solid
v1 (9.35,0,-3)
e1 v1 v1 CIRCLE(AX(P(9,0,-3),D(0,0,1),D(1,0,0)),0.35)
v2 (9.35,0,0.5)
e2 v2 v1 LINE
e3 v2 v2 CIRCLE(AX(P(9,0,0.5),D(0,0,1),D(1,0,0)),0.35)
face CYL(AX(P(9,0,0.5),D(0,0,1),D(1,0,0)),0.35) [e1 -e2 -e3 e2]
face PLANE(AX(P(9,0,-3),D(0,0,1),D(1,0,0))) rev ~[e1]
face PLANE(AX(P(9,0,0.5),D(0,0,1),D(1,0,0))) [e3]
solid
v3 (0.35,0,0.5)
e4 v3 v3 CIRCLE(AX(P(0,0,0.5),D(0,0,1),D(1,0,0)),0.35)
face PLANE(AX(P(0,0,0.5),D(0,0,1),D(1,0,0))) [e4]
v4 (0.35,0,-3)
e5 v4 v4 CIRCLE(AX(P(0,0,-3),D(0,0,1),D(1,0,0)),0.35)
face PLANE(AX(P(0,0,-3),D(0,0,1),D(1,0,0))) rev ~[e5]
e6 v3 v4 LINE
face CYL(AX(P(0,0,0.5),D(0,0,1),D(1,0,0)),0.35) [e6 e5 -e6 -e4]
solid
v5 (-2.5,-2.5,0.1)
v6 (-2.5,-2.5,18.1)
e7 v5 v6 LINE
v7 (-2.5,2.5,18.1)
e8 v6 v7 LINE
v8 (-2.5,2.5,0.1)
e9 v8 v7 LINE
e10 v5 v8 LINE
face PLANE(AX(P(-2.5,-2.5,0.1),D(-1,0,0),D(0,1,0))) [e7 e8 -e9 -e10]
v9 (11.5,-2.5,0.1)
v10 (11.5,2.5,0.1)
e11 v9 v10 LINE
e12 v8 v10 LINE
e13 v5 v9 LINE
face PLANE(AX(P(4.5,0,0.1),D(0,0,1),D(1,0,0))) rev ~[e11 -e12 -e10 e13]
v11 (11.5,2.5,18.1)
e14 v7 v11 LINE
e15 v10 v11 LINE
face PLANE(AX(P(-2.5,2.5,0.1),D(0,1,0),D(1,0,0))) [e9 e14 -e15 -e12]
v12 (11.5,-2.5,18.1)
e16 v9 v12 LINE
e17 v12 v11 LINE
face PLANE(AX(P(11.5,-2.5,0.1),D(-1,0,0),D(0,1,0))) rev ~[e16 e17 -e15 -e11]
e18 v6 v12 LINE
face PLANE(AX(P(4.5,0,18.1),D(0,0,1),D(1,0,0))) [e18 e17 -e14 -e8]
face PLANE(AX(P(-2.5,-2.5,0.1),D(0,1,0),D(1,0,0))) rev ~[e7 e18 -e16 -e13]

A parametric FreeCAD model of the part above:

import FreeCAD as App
import Part
import Sketcher

doc = App.newDocument("Part")
body = doc.addObject("PartDesign::Body", "Body")

# Sketch on XY plane
sketch1 = doc.addObject("Sketcher::SketchObject", "Sketch")
body.addObject(sketch1)
sketch1.AttachmentSupport = (doc.XY_Plane, [""])
sketch1.MapMode = "FlatFace"
sketch1.AttachmentOffset = App.Placement(App.Vector(0, 0, 0.1), App.Rotation())
sketch1.addGeometry([
    Part.LineSegment(App.Vector(-2, 2, 0), App.Vector(-2, -2, 0)),
    Part.LineSegment(App.Vector(-2, -2, 0), App.Vector(12, -2, 0)),
    Part.LineSegment(App.Vector(12, -2, 0), App.Vector(12, 2, 0)),
    Part.LineSegment(App.Vector(12, 2, 0), App.Vector(-2, 2, 0)),
], False)
sketch1.addConstraint([
    Sketcher.Constraint("Coincident", 0, 2, 1, 1),
    Sketcher.Constraint("Coincident", 1, 2, 2, 1),
    Sketcher.Constraint("Coincident", 2, 2, 3, 1),
    Sketcher.Constraint("Coincident", 3, 2, 0, 1),
    Sketcher.Constraint("Vertical", 0),
    Sketcher.Constraint("Horizontal", 1),
    Sketcher.Constraint("Vertical", 2),
    Sketcher.Constraint("Horizontal", 3),
    Sketcher.Constraint("DistanceX", 1, 1, 1, 2, 14.0),
    Sketcher.Constraint("DistanceY", 0, 2, 0, 1, 5.0),
    Sketcher.Constraint("DistanceX", 0, 2, -1, 1, 2.5),
    Sketcher.Constraint("DistanceY", 0, 2, -1, 1, 2.5),
])
pad1 = doc.addObject("PartDesign::Pad", "Pad")
body.addObject(pad1)
pad1.Profile = sketch1
pad1.Length = 18
body2 = doc.addObject("PartDesign::Body", "Body001")
body2.AllowCompound = True

# Sketch on XY plane
sketch2 = doc.addObject("Sketcher::SketchObject", "Sketch001")
body2.addObject(sketch2)
sketch2.AttachmentSupport = (doc.getObject("XY_Plane001"), [""])
sketch2.MapMode = "FlatFace"
sketch2.AttachmentOffset = App.Placement(App.Vector(0, 0, 0.5), App.Rotation())
sketch2.addGeometry([
    Part.Circle(App.Vector(0, 0, 0), App.Vector(0, 0, 1), 0.35),
    Part.Circle(App.Vector(9, 0, 0), App.Vector(0, 0, 1), 0.35),
], False)
sketch2.addConstraint([
    Sketcher.Constraint("Coincident", 0, 3, -1, 1),
    Sketcher.Constraint("Equal", 0, 1),
    Sketcher.Constraint("PointOnObject", 1, 3, -1),
    Sketcher.Constraint("Diameter", 0, 0.7),
    Sketcher.Constraint("DistanceX", -1, 1, 1, 3, 9.0),
])
pad2 = doc.addObject("PartDesign::Pad", "Pad001")
body2.addObject(pad2)
pad2.Profile = sketch2
pad2.Length = 3.5
pad2.Reversed = True

doc.recompute()
